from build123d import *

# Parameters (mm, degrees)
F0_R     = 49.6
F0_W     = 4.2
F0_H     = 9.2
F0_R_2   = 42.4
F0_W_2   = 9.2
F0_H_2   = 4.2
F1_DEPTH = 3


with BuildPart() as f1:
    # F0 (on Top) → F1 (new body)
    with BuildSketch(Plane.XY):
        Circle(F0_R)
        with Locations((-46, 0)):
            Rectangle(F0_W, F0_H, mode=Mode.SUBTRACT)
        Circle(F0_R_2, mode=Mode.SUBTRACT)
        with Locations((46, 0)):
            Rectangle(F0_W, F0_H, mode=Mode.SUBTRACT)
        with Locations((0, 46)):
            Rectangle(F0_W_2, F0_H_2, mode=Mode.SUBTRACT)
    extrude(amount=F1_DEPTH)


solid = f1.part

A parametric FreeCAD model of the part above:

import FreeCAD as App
import Part
import Sketcher
from FreeCAD import Vector
Q = App.Units.Quantity

doc = App.newDocument("Part")
body = doc.addObject("PartDesign::Body", "Body")

sketch1 = doc.addObject("Sketcher::SketchObject", "Sketch")
body.addObject(sketch1)
sketch1.AttachmentSupport = (doc.XY_Plane, [""])
sketch1.MapMode = "FlatFace"
sketch1.addGeometry([
    Part.Circle(Vector(0, 0, 0), Vector(0, 0, 1), 49.6),
    Part.LineSegment(Vector(-43.9, -4.6, 0), Vector(-48.1, -4.6, 0)),
    Part.LineSegment(Vector(-48.1, -4.6, 0), Vector(-48.1, 4.6, 0)),
    Part.LineSegment(Vector(-48.1, 4.6, 0), Vector(-43.9, 4.6, 0)),
    Part.LineSegment(Vector(-43.9, 4.6, 0), Vector(-43.9, -4.6, 0)),
    Part.Circle(Vector(0, 0, 0), Vector(0, 0, 1), 42.4),
    Part.LineSegment(Vector(48.1, -4.6, 0), Vector(43.9, -4.6, 0)),
    Part.LineSegment(Vector(43.9, -4.6, 0), Vector(43.9, 4.6, 0)),
    Part.LineSegment(Vector(43.9, 4.6, 0), Vector(48.1, 4.6, 0)),
    Part.LineSegment(Vector(48.1, 4.6, 0), Vector(48.1, -4.6, 0)),
    Part.LineSegment(Vector(4.6, 43.9, 0), Vector(-4.6, 43.9, 0)),
    Part.LineSegment(Vector(-4.6, 43.9, 0), Vector(-4.6, 48.1, 0)),
    Part.LineSegment(Vector(-4.6, 48.1, 0), Vector(4.6, 48.1, 0)),
    Part.LineSegment(Vector(4.6, 48.1, 0), Vector(4.6, 43.9, 0)),
], False)
sketch1.addConstraint([
    Sketcher.Constraint("Coincident", 1, 2, 2, 1),
    Sketcher.Constraint("Coincident", 2, 2, 3, 1),
    Sketcher.Constraint("Coincident", 3, 2, 4, 1),
    Sketcher.Constraint("Coincident", 4, 2, 1, 1),
    Sketcher.Constraint("Coincident", 6, 2, 7, 1),
    Sketcher.Constraint("Coincident", 7, 2, 8, 1),
    Sketcher.Constraint("Coincident", 8, 2, 9, 1),
    Sketcher.Constraint("Coincident", 9, 2, 6, 1),
    Sketcher.Constraint("Coincident", 10, 2, 11, 1),
    Sketcher.Constraint("Coincident", 11, 2, 12, 1),
    Sketcher.Constraint("Coincident", 12, 2, 13, 1),
    Sketcher.Constraint("Coincident", 13, 2, 10, 1),
    Sketcher.Constraint("Horizontal", 1),
    Sketcher.Constraint("Vertical", 2),
    Sketcher.Constraint("Horizontal", 3),
    Sketcher.Constraint("Vertical", 4),
    Sketcher.Constraint("Horizontal", 6),
    Sketcher.Constraint("Vertical", 7),
    Sketcher.Constraint("Horizontal", 8),
    Sketcher.Constraint("Vertical", 9),
    Sketcher.Constraint("Horizontal", 10),
    Sketcher.Constraint("Vertical", 11),
    Sketcher.Constraint("Horizontal", 12),
    Sketcher.Constraint("Vertical", 13),
    Sketcher.Constraint("Coincident", 0, 3, -1, 1),
    Sketcher.Constraint("Coincident", 5, 3, -1, 1),
    Sketcher.Constraint("Symmetric", 3, 2, 6, 2, -1, 1),
    Sketcher.Constraint("Symmetric", 1, 2, 8, 2, -1, 1),
    Sketcher.Constraint("Horizontal", 4, 2, 6, 2),
    Sketcher.Constraint("Equal", 12, 2),
    Sketcher.Constraint("Equal", 8, 11),
    Sketcher.Constraint("Diameter", 0, Q("99.2 mm")),
    Sketcher.Constraint("Diameter", 5, Q("84.8 mm")),
    Sketcher.Constraint("DistanceX", 1, 2, 1, 1, Q("4.2 mm")),
    Sketcher.Constraint("DistanceX", 10, 2, 10, 1, Q("9.2 mm")),
    Sketcher.Constraint("DistanceX", 1, 2, 6, 2, Q("92 mm")),
    Sketcher.Constraint("DistanceX", 10, 2, -1, 1, Q("4.6 mm")),
    Sketcher.Constraint("DistanceY", -1, 1, 10, 2, Q("43.9 mm")),
])
pad1 = doc.addObject("PartDesign::Pad", "Pad")
body.addObject(pad1)
pad1.Profile = sketch1
pad1.Length = 3

doc.recompute()
